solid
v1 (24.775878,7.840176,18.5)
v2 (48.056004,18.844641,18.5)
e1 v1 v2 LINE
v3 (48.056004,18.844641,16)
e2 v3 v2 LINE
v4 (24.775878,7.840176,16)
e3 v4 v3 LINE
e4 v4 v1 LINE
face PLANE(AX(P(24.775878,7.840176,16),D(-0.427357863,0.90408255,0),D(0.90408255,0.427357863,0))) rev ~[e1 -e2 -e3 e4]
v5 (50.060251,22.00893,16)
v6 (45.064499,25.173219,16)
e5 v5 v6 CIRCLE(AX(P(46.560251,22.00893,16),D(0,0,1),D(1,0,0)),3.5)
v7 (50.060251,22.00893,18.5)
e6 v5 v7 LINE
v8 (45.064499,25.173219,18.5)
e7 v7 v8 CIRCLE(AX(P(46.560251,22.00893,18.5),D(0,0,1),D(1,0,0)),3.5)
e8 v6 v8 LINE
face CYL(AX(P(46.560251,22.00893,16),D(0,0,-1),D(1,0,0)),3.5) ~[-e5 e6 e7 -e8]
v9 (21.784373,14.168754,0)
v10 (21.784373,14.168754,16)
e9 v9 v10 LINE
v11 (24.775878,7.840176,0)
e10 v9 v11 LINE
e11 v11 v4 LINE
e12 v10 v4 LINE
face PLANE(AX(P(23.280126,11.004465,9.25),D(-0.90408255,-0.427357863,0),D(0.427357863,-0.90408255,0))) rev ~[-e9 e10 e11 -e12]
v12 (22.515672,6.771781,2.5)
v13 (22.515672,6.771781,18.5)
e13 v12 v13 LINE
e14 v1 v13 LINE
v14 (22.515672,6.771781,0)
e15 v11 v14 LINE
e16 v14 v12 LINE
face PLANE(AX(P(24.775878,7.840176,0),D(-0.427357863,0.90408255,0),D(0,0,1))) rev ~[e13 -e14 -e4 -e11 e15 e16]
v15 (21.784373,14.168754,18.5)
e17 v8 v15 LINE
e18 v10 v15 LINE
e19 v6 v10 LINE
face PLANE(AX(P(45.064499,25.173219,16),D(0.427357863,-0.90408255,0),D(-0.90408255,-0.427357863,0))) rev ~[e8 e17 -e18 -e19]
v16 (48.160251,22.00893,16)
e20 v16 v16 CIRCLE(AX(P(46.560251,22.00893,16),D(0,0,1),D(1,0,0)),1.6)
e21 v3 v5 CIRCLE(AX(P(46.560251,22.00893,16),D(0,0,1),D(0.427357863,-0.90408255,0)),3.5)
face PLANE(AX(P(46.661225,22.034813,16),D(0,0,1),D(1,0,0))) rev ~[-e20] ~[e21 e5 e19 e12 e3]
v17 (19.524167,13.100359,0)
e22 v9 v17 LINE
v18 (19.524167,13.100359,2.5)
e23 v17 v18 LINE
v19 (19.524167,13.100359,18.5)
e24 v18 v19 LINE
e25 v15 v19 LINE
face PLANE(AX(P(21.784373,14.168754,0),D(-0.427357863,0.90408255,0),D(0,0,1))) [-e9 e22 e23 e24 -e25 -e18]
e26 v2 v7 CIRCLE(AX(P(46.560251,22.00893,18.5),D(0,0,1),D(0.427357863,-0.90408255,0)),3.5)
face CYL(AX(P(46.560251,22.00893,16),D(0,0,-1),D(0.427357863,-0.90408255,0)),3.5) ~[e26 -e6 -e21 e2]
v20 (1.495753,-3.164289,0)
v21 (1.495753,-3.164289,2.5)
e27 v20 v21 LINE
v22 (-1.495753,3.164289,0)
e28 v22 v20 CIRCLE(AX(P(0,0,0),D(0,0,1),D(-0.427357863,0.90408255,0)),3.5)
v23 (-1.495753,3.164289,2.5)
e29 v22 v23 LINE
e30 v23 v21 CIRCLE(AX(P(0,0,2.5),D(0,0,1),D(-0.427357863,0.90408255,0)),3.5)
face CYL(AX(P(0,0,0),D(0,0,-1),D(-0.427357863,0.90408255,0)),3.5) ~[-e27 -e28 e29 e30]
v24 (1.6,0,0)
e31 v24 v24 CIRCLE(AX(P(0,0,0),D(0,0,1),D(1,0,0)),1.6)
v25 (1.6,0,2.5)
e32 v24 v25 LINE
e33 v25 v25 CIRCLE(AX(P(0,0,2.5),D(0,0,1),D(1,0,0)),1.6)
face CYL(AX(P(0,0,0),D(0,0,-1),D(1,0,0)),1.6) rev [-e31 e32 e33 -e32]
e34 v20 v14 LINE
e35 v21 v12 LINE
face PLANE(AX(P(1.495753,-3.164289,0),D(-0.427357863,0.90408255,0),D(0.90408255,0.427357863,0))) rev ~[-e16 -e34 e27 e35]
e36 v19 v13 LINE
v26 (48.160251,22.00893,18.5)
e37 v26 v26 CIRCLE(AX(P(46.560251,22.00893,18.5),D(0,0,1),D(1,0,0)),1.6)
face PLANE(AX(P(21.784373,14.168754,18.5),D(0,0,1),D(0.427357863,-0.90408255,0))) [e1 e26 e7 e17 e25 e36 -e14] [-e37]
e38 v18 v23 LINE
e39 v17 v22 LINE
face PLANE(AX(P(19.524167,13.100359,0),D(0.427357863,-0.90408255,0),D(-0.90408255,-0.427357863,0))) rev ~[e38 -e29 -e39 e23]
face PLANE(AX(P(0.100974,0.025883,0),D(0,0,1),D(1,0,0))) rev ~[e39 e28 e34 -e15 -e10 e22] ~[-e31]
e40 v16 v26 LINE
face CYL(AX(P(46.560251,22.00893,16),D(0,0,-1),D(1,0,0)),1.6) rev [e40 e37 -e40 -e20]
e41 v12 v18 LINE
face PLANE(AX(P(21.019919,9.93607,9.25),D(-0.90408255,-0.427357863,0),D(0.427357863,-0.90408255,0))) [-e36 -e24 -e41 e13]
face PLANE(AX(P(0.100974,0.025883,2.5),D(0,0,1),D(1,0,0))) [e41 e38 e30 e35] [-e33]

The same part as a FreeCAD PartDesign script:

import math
import FreeCAD as App
import Part
import Sketcher
Q = App.Units.Quantity


def add_polygon(sketch, points):
    """Adds a closed chain of lines whose ends are joined by coincident constraints."""
    first, n = sketch.GeometryCount, len(points)
    for a, b in zip(points, points[1:] + points[:1]):
        sketch.addGeometry(Part.LineSegment(App.Vector(*a, 0), App.Vector(*b, 0)), False)
    for i in range(n):
        sketch.addConstraint(Sketcher.Constraint("Coincident", first + i, 2, first + (i + 1) % n, 1))

doc = App.newDocument("Part")
body = doc.addObject("PartDesign::Body", "Body")

sketch1 = doc.addObject("Sketcher::SketchObject", "Sketch")
body.addObject(sketch1)
sketch1.AttachmentSupport = (doc.XY_Plane, [""])
sketch1.MapMode = "FlatFace"
sketch1.AttachmentOffset = App.Placement(App.Vector(0, 0, 16), App.Rotation())
sketch1.addGeometry(Part.ArcOfCircle(Part.Circle(App.Vector(46.6, 22, 0), App.Vector(0, 0, 1), 3.5), math.radians(-65), math.radians(0)), False)
sketch1.addGeometry(Part.ArcOfCircle(Part.Circle(App.Vector(46.6, 22, 0), App.Vector(0, 0, 1), 3.5), math.radians(0), math.radians(115)), False)
sketch1.addGeometry(Part.LineSegment(App.Vector(45.1, 25.2, 0), App.Vector(21.8, 14.2, 0)), False)
sketch1.addGeometry(Part.LineSegment(App.Vector(21.8, 14.2, 0), App.Vector(24.8, 7.8, 0)), False)
sketch1.addGeometry(Part.LineSegment(App.Vector(24.8, 7.8, 0), App.Vector(48.1, 18.8, 0)), False)
sketch1.addGeometry(Part.Circle(App.Vector(46.6, 22, 0), App.Vector(0, 0, 1), 1.6), False)
sketch1.addConstraint(Sketcher.Constraint("Tangent", 0, 2, 1, 1))
sketch1.addConstraint(Sketcher.Constraint("Tangent", 1, 2, 2, 1))
sketch1.addConstraint(Sketcher.Constraint("Coincident", 2, 2, 3, 1))
sketch1.addConstraint(Sketcher.Constraint("Coincident", 3, 2, 4, 1))
sketch1.addConstraint(Sketcher.Constraint("Tangent", 4, 2, 0, 1))
sketch1.addConstraint(Sketcher.Constraint("Coincident", 5, 3, 0, 3))
sketch1.addConstraint(Sketcher.Constraint("Equal", 0, 1))
sketch1.addConstraint(Sketcher.Constraint("Perpendicular", 2, 3))
sketch1.addConstraint(Sketcher.Constraint("Perpendicular", 3, 4))
sketch1.addConstraint(Sketcher.Constraint("Horizontal", 5, 3, 0, 2))
sketch1.addConstraint(Sketcher.Constraint("Diameter", 5, Q("3.2 mm")))
sketch1.addConstraint(Sketcher.Constraint("Radius", 0, Q("3.5 mm")))
sketch1.addConstraint(Sketcher.Constraint("Angle", 2, Q("-154.7 deg")))
sketch1.addConstraint(Sketcher.Constraint("Distance", 2, Q("25.75 mm")))
sketch1.addConstraint(Sketcher.Constraint("DistanceX", -1, 1, 1, 2, Q("45.064499 mm")))
sketch1.addConstraint(Sketcher.Constraint("DistanceY", -1, 1, 0, 3, Q("22.00893 mm")))
pad1 = doc.addObject("PartDesign::Pad", "Pad")
body.addObject(pad1)
pad1.Profile = sketch1
pad1.Length = 2.5

sketch2 = doc.addObject("Sketcher::SketchObject", "Sketch001")
body.addObject(sketch2)
sketch2.Placement = App.Placement(App.Vector(23.280126, 11.004465, 0), App.Rotation(App.Vector(0.427357863, -0.90408255, 0), App.Vector(0, 0, 1), App.Vector(-0.90408255, -0.427357863, 0), "ZXY"))
add_polygon(sketch2, [(-4, 19), (-4, 0), (4, 0), (4, 19)])
sketch2.addConstraint(Sketcher.Constraint("Vertical", 0))
sketch2.addConstraint(Sketcher.Constraint("Horizontal", 1))
sketch2.addConstraint(Sketcher.Constraint("Vertical", 2))
sketch2.addConstraint(Sketcher.Constraint("Horizontal", 3))
sketch2.addConstraint(Sketcher.Constraint("Symmetric", 0, 2, 1, 2, -1, 1))
sketch2.addConstraint(Sketcher.Constraint("DistanceX", 1, 1, 1, 2, Q("7 mm")))
sketch2.addConstraint(Sketcher.Constraint("DistanceY", 0, 2, 0, 1, Q("18.5 mm")))
pad2 = doc.addObject("PartDesign::Pad", "Pad001")
body.addObject(pad2)
pad2.Profile = sketch2
pad2.Length = 2.5

sketch3 = doc.addObject("Sketcher::SketchObject", "Sketch002")
body.addObject(sketch3)
sketch3.AttachmentSupport = (doc.XY_Plane, [""])
sketch3.MapMode = "FlatFace"
sketch3.addGeometry(Part.ArcOfCircle(Part.Circle(App.Vector(0, 0, 0), App.Vector(0, 0, 1), 3.5), math.radians(115), math.radians(295)), False)
sketch3.addGeometry(Part.LineSegment(App.Vector(1.5, -3.2, 0), App.Vector(22.5, 6.8, 0)), False)
sketch3.addGeometry(Part.LineSegment(App.Vector(22.5, 6.8, 0), App.Vector(19.5, 13.1, 0)), False)
sketch3.addGeometry(Part.LineSegment(App.Vector(19.5, 13.1, 0), App.Vector(-1.5, 3.2, 0)), False)
sketch3.addGeometry(Part.Circle(App.Vector(0, 0, 0), App.Vector(0, 0, 1), 1.6), False)
sketch3.addConstraint(Sketcher.Constraint("Tangent", 0, 2, 1, 1))
sketch3.addConstraint(Sketcher.Constraint("Coincident", 1, 2, 2, 1))
sketch3.addConstraint(Sketcher.Constraint("Coincident", 2, 2, 3, 1))
sketch3.addConstraint(Sketcher.Constraint("Tangent", 3, 2, 0, 1))
sketch3.addConstraint(Sketcher.Constraint("Coincident", 0, 3, -1, 1))
sketch3.addConstraint(Sketcher.Constraint("Coincident", 4, 3, -1, 1))
sketch3.addConstraint(Sketcher.Constraint("Perpendicular", 1, 2))
sketch3.addConstraint(Sketcher.Constraint("Perpendicular", 2, 3))
sketch3.addConstraint(Sketcher.Constraint("Diameter", 4, Q("3.2 mm")))
sketch3.addConstraint(Sketcher.Constraint("Radius", 0, Q("3.5 mm")))
sketch3.addConstraint(Sketcher.Constraint("Angle", 1, Q("25.3 deg")))
sketch3.addConstraint(Sketcher.Constraint("Distance", 1, Q("23.25 mm")))
pad3 = doc.addObject("PartDesign::Pad", "Pad002")
body.addObject(pad3)
pad3.Profile = sketch3
pad3.Length = 2.5

doc.recompute()
